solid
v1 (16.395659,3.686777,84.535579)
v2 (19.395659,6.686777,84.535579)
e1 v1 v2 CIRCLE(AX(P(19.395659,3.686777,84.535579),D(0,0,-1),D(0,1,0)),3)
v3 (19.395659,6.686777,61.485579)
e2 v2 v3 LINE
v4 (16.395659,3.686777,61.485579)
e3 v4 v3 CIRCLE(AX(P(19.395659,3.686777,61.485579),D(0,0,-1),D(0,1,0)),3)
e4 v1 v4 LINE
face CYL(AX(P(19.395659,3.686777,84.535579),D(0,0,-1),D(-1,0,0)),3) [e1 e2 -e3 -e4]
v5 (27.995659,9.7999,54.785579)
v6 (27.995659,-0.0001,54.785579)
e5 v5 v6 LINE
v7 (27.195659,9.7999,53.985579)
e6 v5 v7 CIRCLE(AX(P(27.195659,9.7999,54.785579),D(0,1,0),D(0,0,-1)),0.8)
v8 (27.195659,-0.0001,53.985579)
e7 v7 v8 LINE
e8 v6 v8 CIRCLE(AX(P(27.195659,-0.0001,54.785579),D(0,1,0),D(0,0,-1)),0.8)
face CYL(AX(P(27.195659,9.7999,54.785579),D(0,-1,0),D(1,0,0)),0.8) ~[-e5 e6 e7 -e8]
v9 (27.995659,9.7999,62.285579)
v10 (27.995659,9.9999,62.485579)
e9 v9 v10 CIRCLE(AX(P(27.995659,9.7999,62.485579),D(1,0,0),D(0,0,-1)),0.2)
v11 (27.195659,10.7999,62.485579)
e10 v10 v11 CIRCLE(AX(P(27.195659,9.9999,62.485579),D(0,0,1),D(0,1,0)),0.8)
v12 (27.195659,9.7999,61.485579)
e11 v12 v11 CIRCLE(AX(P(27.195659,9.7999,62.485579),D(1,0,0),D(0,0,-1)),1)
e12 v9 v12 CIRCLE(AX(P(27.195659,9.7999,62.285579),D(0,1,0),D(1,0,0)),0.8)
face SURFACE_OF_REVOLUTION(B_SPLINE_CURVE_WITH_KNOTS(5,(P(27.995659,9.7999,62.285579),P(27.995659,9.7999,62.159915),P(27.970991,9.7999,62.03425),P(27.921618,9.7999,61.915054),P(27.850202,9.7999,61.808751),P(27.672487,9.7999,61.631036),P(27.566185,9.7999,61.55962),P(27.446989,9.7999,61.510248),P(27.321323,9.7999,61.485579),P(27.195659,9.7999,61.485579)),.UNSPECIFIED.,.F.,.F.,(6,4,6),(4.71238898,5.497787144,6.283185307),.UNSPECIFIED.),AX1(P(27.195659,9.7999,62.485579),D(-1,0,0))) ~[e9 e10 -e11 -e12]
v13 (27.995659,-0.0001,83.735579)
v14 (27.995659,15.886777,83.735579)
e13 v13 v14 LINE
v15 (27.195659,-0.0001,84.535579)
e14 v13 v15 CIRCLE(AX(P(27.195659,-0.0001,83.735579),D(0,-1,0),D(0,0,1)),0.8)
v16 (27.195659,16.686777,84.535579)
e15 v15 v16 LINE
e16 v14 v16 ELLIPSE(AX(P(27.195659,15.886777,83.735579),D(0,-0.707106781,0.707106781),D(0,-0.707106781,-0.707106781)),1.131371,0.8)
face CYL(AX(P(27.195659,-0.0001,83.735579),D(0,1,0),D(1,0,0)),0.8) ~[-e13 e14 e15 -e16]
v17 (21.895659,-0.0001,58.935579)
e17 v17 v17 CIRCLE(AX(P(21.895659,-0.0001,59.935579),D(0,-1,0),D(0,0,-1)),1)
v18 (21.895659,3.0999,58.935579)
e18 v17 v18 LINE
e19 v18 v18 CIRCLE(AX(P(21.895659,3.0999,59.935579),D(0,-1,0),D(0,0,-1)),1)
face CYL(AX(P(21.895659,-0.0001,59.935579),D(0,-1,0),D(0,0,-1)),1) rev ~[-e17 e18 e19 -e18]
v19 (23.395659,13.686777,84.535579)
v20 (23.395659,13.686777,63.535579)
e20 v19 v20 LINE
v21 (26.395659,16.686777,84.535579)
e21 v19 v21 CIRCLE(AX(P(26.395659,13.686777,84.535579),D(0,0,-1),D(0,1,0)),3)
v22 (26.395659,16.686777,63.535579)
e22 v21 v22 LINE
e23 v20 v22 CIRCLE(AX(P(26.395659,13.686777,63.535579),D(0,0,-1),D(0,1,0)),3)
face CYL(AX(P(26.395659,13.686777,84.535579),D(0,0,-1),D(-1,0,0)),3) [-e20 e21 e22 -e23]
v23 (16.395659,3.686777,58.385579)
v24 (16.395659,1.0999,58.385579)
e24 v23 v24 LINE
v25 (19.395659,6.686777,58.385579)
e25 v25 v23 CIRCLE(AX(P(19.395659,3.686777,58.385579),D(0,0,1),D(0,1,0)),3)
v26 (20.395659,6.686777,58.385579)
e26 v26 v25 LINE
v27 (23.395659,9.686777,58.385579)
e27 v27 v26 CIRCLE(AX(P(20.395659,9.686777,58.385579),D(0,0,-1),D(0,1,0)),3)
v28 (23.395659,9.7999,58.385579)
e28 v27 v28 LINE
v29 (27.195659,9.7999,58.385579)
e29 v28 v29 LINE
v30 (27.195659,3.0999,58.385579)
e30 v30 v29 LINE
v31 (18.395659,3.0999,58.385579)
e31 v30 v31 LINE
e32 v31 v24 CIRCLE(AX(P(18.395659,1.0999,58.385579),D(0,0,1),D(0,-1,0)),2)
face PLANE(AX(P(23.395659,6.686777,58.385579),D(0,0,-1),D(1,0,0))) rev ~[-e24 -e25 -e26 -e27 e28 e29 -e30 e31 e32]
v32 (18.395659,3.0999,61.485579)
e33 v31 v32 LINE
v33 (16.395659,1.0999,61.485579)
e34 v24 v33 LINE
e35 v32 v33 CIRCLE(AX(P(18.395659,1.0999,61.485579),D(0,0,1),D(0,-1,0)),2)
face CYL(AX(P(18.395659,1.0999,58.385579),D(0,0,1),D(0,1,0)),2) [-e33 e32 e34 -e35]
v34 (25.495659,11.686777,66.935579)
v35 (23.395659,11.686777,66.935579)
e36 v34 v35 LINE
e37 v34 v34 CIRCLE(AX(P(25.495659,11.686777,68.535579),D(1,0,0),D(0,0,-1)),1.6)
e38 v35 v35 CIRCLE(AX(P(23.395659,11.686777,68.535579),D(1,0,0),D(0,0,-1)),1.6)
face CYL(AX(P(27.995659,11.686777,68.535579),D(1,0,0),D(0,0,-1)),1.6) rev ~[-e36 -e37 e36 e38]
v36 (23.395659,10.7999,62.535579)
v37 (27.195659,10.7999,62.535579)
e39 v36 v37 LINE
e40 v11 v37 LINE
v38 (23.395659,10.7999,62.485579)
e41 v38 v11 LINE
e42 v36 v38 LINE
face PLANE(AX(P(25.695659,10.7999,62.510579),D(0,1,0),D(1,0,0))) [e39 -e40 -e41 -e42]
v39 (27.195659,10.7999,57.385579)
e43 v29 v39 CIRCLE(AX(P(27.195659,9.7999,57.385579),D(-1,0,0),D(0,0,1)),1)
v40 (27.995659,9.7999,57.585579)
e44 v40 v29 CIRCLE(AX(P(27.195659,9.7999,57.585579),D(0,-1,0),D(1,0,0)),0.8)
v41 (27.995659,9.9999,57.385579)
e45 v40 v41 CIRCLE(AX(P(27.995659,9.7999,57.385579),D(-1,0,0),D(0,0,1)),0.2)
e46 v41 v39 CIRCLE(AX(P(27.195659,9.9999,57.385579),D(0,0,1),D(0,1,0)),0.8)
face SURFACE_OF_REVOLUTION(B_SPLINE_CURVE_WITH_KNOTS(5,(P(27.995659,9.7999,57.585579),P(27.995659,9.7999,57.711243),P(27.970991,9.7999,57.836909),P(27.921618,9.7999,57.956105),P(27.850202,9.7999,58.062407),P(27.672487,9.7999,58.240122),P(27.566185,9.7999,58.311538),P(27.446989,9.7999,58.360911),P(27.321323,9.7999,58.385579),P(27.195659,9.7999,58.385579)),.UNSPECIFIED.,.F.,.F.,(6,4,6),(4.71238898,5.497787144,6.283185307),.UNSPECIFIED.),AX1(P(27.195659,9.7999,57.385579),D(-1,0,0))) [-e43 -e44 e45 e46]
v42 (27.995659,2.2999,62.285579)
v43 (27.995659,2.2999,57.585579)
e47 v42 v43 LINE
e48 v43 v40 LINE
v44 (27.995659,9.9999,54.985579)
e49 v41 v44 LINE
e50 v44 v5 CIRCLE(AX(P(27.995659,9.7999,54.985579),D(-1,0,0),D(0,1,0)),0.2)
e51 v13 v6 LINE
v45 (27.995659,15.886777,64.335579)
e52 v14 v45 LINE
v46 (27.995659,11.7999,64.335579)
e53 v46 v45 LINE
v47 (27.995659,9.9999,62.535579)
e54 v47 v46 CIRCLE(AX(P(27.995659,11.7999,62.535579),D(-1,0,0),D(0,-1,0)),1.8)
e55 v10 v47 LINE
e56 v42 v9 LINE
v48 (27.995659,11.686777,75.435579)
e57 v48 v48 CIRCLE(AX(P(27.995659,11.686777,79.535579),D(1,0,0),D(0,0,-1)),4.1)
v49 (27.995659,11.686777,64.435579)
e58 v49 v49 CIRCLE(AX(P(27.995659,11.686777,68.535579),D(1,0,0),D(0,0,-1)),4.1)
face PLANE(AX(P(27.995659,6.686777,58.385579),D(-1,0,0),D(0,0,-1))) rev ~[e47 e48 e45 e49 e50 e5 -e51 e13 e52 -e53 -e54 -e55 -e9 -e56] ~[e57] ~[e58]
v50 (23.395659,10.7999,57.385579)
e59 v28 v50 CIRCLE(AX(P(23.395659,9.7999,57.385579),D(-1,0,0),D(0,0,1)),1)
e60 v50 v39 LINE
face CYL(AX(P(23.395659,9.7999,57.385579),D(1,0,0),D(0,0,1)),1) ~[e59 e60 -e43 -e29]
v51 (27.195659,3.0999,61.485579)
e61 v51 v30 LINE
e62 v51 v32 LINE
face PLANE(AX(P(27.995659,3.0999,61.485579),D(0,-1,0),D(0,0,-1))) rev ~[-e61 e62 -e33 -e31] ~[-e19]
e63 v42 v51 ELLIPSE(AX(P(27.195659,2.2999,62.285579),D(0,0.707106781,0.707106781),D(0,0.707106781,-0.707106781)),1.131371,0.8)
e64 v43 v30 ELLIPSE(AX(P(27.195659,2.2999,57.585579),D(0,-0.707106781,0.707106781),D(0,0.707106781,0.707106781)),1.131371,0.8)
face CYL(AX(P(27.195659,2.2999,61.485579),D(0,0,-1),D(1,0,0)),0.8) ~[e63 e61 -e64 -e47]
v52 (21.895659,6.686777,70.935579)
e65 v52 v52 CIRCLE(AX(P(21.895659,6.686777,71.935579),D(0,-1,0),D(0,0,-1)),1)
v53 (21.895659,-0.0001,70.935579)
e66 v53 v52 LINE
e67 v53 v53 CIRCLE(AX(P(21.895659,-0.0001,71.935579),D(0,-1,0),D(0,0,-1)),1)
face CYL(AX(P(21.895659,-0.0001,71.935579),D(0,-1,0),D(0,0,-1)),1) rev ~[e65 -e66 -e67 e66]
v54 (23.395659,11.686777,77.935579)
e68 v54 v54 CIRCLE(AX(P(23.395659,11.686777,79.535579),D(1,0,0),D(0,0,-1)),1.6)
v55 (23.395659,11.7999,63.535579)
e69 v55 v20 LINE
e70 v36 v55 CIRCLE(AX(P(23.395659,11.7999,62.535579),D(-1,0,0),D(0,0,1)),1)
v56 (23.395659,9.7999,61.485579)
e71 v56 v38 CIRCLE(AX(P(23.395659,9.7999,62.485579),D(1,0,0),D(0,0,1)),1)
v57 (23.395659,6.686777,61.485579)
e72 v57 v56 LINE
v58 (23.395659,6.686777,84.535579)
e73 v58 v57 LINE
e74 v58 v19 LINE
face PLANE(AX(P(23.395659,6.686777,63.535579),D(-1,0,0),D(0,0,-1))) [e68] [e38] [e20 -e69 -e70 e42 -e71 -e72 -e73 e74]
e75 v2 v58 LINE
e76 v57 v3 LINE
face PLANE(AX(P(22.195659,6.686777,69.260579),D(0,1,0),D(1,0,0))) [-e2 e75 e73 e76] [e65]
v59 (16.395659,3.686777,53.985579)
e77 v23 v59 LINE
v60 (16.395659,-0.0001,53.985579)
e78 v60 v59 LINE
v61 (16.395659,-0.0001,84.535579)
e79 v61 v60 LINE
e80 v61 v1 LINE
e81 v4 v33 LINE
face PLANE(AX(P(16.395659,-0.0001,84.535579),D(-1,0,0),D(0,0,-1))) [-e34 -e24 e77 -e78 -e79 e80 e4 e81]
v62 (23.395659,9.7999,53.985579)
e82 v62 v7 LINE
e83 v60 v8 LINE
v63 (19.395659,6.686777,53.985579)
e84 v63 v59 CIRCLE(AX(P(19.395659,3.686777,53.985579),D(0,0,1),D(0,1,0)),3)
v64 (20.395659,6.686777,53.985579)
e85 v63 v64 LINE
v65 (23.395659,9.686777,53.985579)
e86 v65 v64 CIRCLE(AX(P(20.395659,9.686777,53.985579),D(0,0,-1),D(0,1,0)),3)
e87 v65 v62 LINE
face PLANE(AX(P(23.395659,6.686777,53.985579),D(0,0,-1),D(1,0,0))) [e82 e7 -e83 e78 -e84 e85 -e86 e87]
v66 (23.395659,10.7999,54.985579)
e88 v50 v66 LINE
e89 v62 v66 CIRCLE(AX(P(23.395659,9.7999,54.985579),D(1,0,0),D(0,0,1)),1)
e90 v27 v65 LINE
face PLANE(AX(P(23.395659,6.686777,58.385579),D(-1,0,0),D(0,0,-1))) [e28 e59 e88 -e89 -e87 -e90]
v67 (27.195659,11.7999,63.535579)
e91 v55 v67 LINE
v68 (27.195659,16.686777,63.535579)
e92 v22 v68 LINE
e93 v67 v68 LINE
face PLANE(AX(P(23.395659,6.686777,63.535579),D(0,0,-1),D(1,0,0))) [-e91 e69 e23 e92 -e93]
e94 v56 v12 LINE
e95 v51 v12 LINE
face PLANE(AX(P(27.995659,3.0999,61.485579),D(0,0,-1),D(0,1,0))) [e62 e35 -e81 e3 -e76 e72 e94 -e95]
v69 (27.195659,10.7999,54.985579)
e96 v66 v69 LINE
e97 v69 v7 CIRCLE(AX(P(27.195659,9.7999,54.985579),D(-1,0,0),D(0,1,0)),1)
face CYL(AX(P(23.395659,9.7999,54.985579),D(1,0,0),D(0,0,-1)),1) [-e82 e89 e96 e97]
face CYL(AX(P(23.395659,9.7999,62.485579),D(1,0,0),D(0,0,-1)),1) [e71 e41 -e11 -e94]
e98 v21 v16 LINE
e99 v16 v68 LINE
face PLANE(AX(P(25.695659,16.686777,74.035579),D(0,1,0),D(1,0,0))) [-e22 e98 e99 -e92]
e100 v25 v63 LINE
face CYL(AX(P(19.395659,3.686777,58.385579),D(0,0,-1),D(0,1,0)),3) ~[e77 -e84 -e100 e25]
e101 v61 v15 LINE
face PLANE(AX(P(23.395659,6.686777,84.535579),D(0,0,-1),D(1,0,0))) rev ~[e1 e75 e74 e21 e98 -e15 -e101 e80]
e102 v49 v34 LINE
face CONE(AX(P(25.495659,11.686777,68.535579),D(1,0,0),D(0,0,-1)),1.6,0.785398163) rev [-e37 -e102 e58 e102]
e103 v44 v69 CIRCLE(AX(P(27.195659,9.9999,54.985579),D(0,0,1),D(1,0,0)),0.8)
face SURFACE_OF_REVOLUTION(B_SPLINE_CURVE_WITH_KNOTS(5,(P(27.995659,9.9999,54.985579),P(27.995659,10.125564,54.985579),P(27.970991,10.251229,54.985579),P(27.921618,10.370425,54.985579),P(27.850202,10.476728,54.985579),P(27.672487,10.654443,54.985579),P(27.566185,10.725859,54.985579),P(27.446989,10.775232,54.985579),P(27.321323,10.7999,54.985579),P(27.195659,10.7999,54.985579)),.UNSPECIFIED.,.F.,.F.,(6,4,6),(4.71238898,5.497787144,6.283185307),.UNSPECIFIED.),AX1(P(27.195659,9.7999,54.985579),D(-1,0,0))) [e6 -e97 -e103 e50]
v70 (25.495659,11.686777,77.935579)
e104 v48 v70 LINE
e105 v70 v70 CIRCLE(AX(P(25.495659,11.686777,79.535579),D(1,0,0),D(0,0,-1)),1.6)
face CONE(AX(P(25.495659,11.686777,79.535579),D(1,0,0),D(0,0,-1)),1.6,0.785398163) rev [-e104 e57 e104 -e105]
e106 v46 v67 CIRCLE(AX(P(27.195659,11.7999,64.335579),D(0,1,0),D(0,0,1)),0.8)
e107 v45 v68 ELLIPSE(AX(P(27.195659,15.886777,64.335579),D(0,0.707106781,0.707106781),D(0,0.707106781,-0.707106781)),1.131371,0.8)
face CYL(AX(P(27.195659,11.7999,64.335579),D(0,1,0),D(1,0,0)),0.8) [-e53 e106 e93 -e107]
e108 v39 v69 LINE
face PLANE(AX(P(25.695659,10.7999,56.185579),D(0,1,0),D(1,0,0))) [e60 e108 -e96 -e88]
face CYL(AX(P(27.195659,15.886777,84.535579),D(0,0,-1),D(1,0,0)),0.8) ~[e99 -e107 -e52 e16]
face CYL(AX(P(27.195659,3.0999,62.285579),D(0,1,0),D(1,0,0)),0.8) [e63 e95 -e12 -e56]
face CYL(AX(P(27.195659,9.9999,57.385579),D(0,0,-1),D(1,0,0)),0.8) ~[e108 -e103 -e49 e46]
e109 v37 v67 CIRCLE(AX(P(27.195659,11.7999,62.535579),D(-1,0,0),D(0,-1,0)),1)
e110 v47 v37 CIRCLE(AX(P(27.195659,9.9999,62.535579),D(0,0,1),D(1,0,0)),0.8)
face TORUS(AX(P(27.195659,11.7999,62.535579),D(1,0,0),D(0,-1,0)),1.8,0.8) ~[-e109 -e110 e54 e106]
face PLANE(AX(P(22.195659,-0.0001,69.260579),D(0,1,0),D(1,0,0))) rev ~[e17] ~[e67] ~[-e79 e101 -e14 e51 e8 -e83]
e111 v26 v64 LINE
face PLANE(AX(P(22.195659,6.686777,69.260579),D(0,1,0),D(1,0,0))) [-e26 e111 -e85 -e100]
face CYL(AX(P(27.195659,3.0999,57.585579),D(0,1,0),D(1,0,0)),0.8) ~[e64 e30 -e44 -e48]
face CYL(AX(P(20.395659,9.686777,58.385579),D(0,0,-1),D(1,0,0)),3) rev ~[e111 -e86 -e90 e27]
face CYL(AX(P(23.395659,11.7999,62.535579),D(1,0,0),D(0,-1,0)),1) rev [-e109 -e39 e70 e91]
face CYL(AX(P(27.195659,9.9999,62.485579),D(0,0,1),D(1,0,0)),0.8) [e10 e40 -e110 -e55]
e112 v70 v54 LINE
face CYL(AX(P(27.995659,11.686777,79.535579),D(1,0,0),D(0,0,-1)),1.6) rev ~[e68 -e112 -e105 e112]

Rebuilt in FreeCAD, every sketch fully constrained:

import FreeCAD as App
import Part
import Sketcher
from FreeCAD import Vector


def edges_at(feature, points):
    """Names of the edges that pass closest to the given points."""
    edges = feature.Shape.Edges
    near = lambda p: min(range(len(edges)), key=lambda i: edges[i].distToShape(Part.Vertex(*p))[0])
    return sorted({f"Edge{near(p) + 1}" for p in points})


def add_polygon(sketch, points):
    """Adds a closed chain of lines whose ends are joined by coincident constraints."""
    first, n = sketch.GeometryCount, len(points)
    for a, b in zip(points, points[1:] + points[:1]):
        sketch.addGeometry(Part.LineSegment(App.Vector(*a, 0), App.Vector(*b, 0)), False)
    for i in range(n):
        sketch.addConstraint(Sketcher.Constraint("Coincident", first + i, 2, first + (i + 1) % n, 1))

doc = App.newDocument("Part")
body = doc.addObject("PartDesign::Body", "Body")

# Sketch on XZ plane
sketch1 = body.newObject("Sketcher::SketchObject", "Sketch")
sketch1.AttachmentSupport = (doc.getObject("XZ_Plane"), [""])
sketch1.MapMode = "FlatFace"
add_polygon(sketch1, [(16, 54), (16, 85), (28, 85), (28, 54)])  # lines 0-3
sketch1.addConstraint([
    Sketcher.Constraint("Vertical", 0),
    Sketcher.Constraint("Horizontal", 1),
    Sketcher.Constraint("Vertical", 2),
    Sketcher.Constraint("Horizontal", 3),
    Sketcher.Constraint("DistanceX", 1, 1, 1, 2, 11.6),
    Sketcher.Constraint("DistanceY", 0, 1, 0, 2, 30.55),
    Sketcher.Constraint("DistanceX", -1, 1, 0, 2, 16.395659),
    Sketcher.Constraint("DistanceY", -1, 1, 0, 2, 84.535579),
])
pad1 = body.newObject("PartDesign::Pad", "Pad")
pad1.Profile = sketch1
pad1.Type = "TwoLengths"
pad1.Length = 6.686777
pad1.Length2 = 0.0001
pad1.Reversed = True

# Sketch on XZ plane
sketch2 = body.newObject("Sketcher::SketchObject", "Sketch001")
sketch2.AttachmentSupport = (doc.getObject("XZ_Plane"), [""])
sketch2.MapMode = "FlatFace"
sketch2.AttachmentOffset = App.Placement(Vector(0, 0, -6.686777), App.Rotation())
add_polygon(sketch2, [(23.4, 63.5), (23.4, 84.5), (28, 84.5), (28, 63.5)])  # lines 0-3
sketch2.addConstraint([
    Sketcher.Constraint("Vertical", 0),
    Sketcher.Constraint("Horizontal", 1),
    Sketcher.Constraint("Vertical", 2),
    Sketcher.Constraint("Horizontal", 3),
    Sketcher.Constraint("DistanceY", 0, 1, 0, 2, 21.0),
    Sketcher.Constraint("DistanceX", 1, 1, 1, 2, 4.6),
    Sketcher.Constraint("DistanceX", -1, 1, 0, 2, 23.395659),
    Sketcher.Constraint("DistanceY", -1, 1, 0, 2, 84.535579),
])
pad2 = body.newObject("PartDesign::Pad", "Pad001")
pad2.Profile = sketch2
pad2.Length = 10
pad2.Reversed = True
doc.recompute()

fillet = body.newObject("PartDesign::Fillet", "Fillet")
fillet.Base = (pad2, edges_at(pad2, [(23.396, 16.687, 74.036)]))
fillet.Radius = 3

# Sketch on XZ plane
sketch3 = body.newObject("Sketcher::SketchObject", "Sketch002")
sketch3.AttachmentSupport = (doc.getObject("XZ_Plane"), [""])
sketch3.MapMode = "FlatFace"
sketch3.AttachmentOffset = App.Placement(Vector(0, 0, -6.686777), App.Rotation())
add_polygon(sketch3, [(23.4, 54), (23.4, 58.4), (28, 58.4), (28, 54)])  # lines 0-3
add_polygon(sketch3, [(23.4, 61.5), (23.4, 63.5), (28, 63.5), (28, 61.5)])  # lines 4-7
sketch3.addConstraint([
    Sketcher.Constraint("Vertical", 0),
    Sketcher.Constraint("Horizontal", 1),
    Sketcher.Constraint("Vertical", 2),
    Sketcher.Constraint("Horizontal", 3),
    Sketcher.Constraint("Vertical", 4),
    Sketcher.Constraint("Horizontal", 5),
    Sketcher.Constraint("Vertical", 6),
    Sketcher.Constraint("Horizontal", 7),
    Sketcher.Constraint("Vertical", 3, 2, 4, 2),
    Sketcher.Constraint("Vertical", 2, 2, 5, 2),
    Sketcher.Constraint("DistanceX", 1, 1, 1, 2, 4.6),
    Sketcher.Constraint("DistanceY", 0, 1, 0, 2, 4.4),
    Sketcher.Constraint("DistanceY", 4, 1, 4, 2, 2.05),
    Sketcher.Constraint("DistanceY", 1, 2, 6, 2, 3.1),
    Sketcher.Constraint("DistanceX", -1, 1, 0, 2, 23.395659),
    Sketcher.Constraint("DistanceY", -1, 1, 0, 2, 58.385579),
])
pad3 = body.newObject("PartDesign::Pad", "Pad002")
pad3.Profile = sketch3
pad3.Length = 4.113123
pad3.Reversed = True

# Sketch on YZ plane
sketch4 = body.newObject("Sketcher::SketchObject", "Sketch003")
sketch4.AttachmentSupport = (doc.getObject("YZ_Plane"), [""])
sketch4.MapMode = "FlatFace"
sketch4.AttachmentOffset = App.Placement(Vector(0, 0, 27.995659), App.Rotation())
add_polygon(sketch4, [(6.7, 61.5), (3.1, 61.5), (3.1, 58.4), (6.7, 58.4)])  # lines 0-3
sketch4.addConstraint([
    Sketcher.Constraint("Horizontal", 0),
    Sketcher.Constraint("Vertical", 1),
    Sketcher.Constraint("Horizontal", 2),
    Sketcher.Constraint("Vertical", 3),
    Sketcher.Constraint("DistanceY", 1, 2, 1, 1, 3.1),
    Sketcher.Constraint("DistanceX", -1, 1, 0, 2, 3.0999),
    Sketcher.Constraint("DistanceX", 0, 2, 0, 1, 3.586877),
    Sketcher.Constraint("DistanceY", -1, 1, 0, 2, 61.485579),
])
pocket1 = body.newObject("PartDesign::Pocket", "Pocket")
pocket1.Profile = sketch4
pocket1.Type = "ThroughAll"

# Sketch on YZ plane
sketch5 = body.newObject("Sketcher::SketchObject", "Sketch004")
sketch5.AttachmentSupport = (doc.getObject("YZ_Plane"), [""])
sketch5.MapMode = "FlatFace"
sketch5.AttachmentOffset = App.Placement(Vector(0, 0, 27.995659), App.Rotation())
sketch5.addGeometry([
    Part.Circle(Vector(11.7, 68.5, 0), Vector(0, 0, 1), 1.6),
    Part.Circle(Vector(11.7, 79.5, 0), Vector(0, 0, 1), 1.6),
], False)
sketch5.addConstraint([
    Sketcher.Constraint("Equal", 0, 1),
    Sketcher.Constraint("Vertical", 0, 3, 1, 3),
    Sketcher.Constraint("Diameter", 0, 3.2),
    Sketcher.Constraint("DistanceY", 0, 3, 1, 3, 11.0),
    Sketcher.Constraint("DistanceY", -1, 1, 0, 3, 68.535579),
    Sketcher.Constraint("DistanceX", -1, 1, 0, 3, 11.686777),
])
pocket2 = body.newObject("PartDesign::Pocket", "Pocket001")
pocket2.Profile = sketch5
pocket2.Type = "ThroughAll"

# Sketch on XZ plane
sketch6 = body.newObject("Sketcher::SketchObject", "Sketch005")
sketch6.AttachmentSupport = (doc.getObject("XZ_Plane"), [""])
sketch6.MapMode = "FlatFace"
sketch6.AttachmentOffset = App.Placement(Vector(0, 0, 0.0001), App.Rotation())
sketch6.addGeometry([
    Part.Circle(Vector(21.9, 59.9, 0), Vector(0, 0, 1), 1),
    Part.Circle(Vector(21.9, 71.9, 0), Vector(0, 0, 1), 1),
], False)
sketch6.addConstraint([
    Sketcher.Constraint("Equal", 0, 1),
    Sketcher.Constraint("Vertical", 0, 3, 1, 3),
    Sketcher.Constraint("Diameter", 0, 2.0),
    Sketcher.Constraint("DistanceY", 0, 3, 1, 3, 12.0),
    Sketcher.Constraint("DistanceX", -1, 1, 0, 3, 21.895659),
    Sketcher.Constraint("DistanceY", -1, 1, 0, 3, 59.935579),
])
pocket3 = body.newObject("PartDesign::Pocket", "Pocket002")
pocket3.Profile = sketch6
pocket3.Type = "ThroughAll"
doc.recompute()

fillet2 = body.newObject("PartDesign::Fillet", "Fillet001")
fillet2.Base = (pocket3, edges_at(pocket3, [
    (25.696, 10.8, 58.386),
    (25.696, 10.8, 53.986),
    (25.696, 10.8, 61.486),
    (25.696, 10.8, 63.536),
]))
fillet2.Radius = 1
doc.recompute()

fillet3 = body.newObject("PartDesign::Fillet", "Fillet002")
fillet3.Base = (fillet2, edges_at(fillet2, [(16.396, 6.687, 73.011), (16.396, 6.687, 56.186), (23.396, 6.687, 56.186)]))
fillet3.Radius = 3
doc.recompute()

fillet4 = body.newObject("PartDesign::Fillet", "Fillet003")
fillet4.Base = (fillet3, edges_at(fillet3, [(16.396, 3.1, 59.936)]))
fillet4.Radius = 2
doc.recompute()

chamfer = body.newObject("PartDesign::Chamfer", "Chamfer")
chamfer.Base = (fillet4, edges_at(fillet4, [(27.996, 11.687, 70.136), (27.996, 11.687, 81.136)]))
chamfer.Size = 2.5
doc.recompute()

fillet5 = body.newObject("PartDesign::Fillet", "Fillet004")
fillet5.Base = (chamfer, edges_at(chamfer, [
    (27.996, 10.8, 56.186),
    (27.996, 6.45, 58.386),
    (27.996, 6.45, 61.486),
    (27.996, 10.8, 62.511),
    (27.996, 10.507, 58.093),
    (27.996, 10.507, 61.778),
    (27.996, 10.507, 54.278),
    (27.996, 11.093, 63.243),
    (27.996, 14.243, 63.536),
    (27.996, 16.687, 74.036),
    (27.996, 8.343, 84.536),
    (27.996, 4.9, 53.986),
    (27.996, 3.1, 59.936),
]))
fillet5.Radius = 0.8

doc.recompute()
